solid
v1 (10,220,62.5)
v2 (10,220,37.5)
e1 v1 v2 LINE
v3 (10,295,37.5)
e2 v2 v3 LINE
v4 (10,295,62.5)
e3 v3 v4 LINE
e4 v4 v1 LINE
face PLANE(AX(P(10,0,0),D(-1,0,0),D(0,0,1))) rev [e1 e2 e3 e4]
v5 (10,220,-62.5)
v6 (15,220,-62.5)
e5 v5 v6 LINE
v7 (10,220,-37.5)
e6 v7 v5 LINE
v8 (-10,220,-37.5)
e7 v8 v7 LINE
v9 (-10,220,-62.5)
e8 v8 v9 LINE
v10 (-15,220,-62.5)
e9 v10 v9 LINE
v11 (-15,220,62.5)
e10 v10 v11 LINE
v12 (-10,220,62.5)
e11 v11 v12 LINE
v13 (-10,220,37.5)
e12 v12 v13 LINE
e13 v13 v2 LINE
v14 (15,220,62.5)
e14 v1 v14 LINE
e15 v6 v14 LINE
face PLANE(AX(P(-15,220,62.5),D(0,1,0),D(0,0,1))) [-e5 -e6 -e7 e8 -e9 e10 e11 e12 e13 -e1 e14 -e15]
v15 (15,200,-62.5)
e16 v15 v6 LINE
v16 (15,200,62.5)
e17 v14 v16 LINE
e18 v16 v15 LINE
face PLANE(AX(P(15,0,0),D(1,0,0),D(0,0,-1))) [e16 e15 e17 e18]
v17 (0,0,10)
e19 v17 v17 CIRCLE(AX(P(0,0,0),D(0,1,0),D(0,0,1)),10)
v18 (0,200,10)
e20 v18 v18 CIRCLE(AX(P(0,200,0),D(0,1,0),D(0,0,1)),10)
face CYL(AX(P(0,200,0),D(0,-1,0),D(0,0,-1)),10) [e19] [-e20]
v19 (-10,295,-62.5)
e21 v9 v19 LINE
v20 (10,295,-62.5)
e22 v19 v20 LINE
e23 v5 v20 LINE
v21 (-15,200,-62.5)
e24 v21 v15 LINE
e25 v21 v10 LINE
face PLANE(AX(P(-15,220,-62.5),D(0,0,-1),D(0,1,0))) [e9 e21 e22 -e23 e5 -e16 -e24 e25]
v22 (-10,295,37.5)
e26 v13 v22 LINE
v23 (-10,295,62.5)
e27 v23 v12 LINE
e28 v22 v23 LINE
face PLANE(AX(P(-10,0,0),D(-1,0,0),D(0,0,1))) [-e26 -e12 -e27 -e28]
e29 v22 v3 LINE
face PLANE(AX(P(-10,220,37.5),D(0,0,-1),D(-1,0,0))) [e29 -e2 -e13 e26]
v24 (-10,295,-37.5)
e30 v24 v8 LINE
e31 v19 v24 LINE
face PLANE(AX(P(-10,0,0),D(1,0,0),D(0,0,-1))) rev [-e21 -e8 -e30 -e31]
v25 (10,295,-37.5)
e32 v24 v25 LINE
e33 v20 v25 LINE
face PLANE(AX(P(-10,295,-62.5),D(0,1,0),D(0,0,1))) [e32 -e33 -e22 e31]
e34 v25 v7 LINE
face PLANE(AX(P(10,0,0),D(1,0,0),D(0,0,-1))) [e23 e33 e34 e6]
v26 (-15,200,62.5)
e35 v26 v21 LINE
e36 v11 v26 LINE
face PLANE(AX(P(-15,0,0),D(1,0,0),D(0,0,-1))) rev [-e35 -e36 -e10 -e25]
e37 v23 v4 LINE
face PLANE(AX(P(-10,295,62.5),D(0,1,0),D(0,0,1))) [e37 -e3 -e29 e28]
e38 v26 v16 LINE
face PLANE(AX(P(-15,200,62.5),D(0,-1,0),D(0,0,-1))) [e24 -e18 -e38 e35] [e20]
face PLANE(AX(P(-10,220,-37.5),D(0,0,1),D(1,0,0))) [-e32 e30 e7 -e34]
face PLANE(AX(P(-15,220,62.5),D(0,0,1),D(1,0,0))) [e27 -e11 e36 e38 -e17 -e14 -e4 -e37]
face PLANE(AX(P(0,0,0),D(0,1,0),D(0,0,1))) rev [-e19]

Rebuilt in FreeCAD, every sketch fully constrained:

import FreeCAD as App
import Part
import Sketcher

V = App.Vector


def add_polygon(sketch, points):
    """Adds a closed chain of lines whose ends are joined by coincident constraints."""
    first, n = sketch.GeometryCount, len(points)
    for a, b in zip(points, points[1:] + points[:1]):
        sketch.addGeometry(Part.LineSegment(App.Vector(*a, 0), App.Vector(*b, 0)), False)
    for i in range(n):
        sketch.addConstraint(Sketcher.Constraint("Coincident", first + i, 2, first + (i + 1) % n, 1))

doc = App.newDocument("Part")
params = doc.addObject("Spreadsheet::Sheet", "Params")
for row, (alias, value) in enumerate([
    ("sketch1_diameter", "20 mm"),
    ("pad1_length", "200 mm"),
    ("sketch2_width", "20 mm"),
    ("sketch2_height", "125 mm"),
    ("pad2_length", "15 mm"),
    ("pad2_length2", "15 mm"),
    ("sketch3_width", "75 mm"),
    ("sketch3_height", "25 mm"),
    ("pad3_length", "10 mm"),
    ("pad3_length2", "10 mm"),
], start=1):
    params.set(f"A{row}", alias)
    params.set(f"B{row}", "=" + value)
    params.setAlias(f"B{row}", alias)

body = doc.addObject("PartDesign::Body", "Body")

sketch1 = doc.addObject("Sketcher::SketchObject", "Sketch")
body.addObject(sketch1)
sketch1.AttachmentSupport = (doc.XZ_Plane, [""])
sketch1.MapMode = "FlatFace"
sketch1.addGeometry(Part.Circle(V(0, 0, 0), V(0, 0, 1), 10), False)
sketch1.addConstraint([
    Sketcher.Constraint("Coincident", 0, 3, -1, 1),
    Sketcher.Constraint("Diameter", 0, 20.0),
])
sketch1.setExpression("Constraints[1]", "Params.sketch1_diameter")
pad1 = doc.addObject("PartDesign::Pad", "Pad")
body.addObject(pad1)
pad1.Profile = sketch1
pad1.setExpression("Length", "Params.pad1_length")
pad1.Reversed = True

sketch2 = doc.addObject("Sketcher::SketchObject", "Sketch001")
body.addObject(sketch2)
sketch2.AttachmentSupport = (doc.YZ_Plane, [""])
sketch2.MapMode = "FlatFace"
add_polygon(sketch2, [(220, 62), (200, 62), (200, -62), (220, -62)])
sketch2.addConstraint([
    Sketcher.Constraint("Horizontal", 0),
    Sketcher.Constraint("Vertical", 1),
    Sketcher.Constraint("Horizontal", 2),
    Sketcher.Constraint("Vertical", 3),
    Sketcher.Constraint("DistanceX", 0, 2, 0, 1, 20.0),
    Sketcher.Constraint("DistanceY", 1, 2, 1, 1, 125.0),
    Sketcher.Constraint("DistanceX", -1, 1, 0, 2, 200.0),
    Sketcher.Constraint("DistanceY", -1, 1, 0, 2, 62.5),
])
sketch2.setExpression("Constraints[8]", "Params.sketch2_width")
sketch2.setExpression("Constraints[9]", "Params.sketch2_height")
pad2 = doc.addObject("PartDesign::Pad", "Pad001")
body.addObject(pad2)
pad2.Profile = sketch2
pad2.Type = "TwoLengths"
pad2.setExpression("Length", "Params.pad2_length")
pad2.setExpression("Length2", "Params.pad2_length2")

sketch3 = doc.addObject("Sketcher::SketchObject", "Sketch002")
body.addObject(sketch3)
sketch3.AttachmentSupport = (doc.YZ_Plane, [""])
sketch3.MapMode = "FlatFace"
add_polygon(sketch3, [(295, 62), (220, 62), (220, 38), (295, 38)])
add_polygon(sketch3, [(295, -38), (220, -38), (220, -62), (295, -62)])
sketch3.addConstraint([
    Sketcher.Constraint("Horizontal", 0),
    Sketcher.Constraint("Vertical", 1),
    Sketcher.Constraint("Horizontal", 2),
    Sketcher.Constraint("Vertical", 3),
    Sketcher.Constraint("Horizontal", 4),
    Sketcher.Constraint("Vertical", 5),
    Sketcher.Constraint("Horizontal", 6),
    Sketcher.Constraint("Vertical", 7),
    Sketcher.Constraint("Symmetric", 1, 2, 4, 2, -1),
    Sketcher.Constraint("Symmetric", 3, 2, 6, 2, -1),
    Sketcher.Constraint("DistanceX", 0, 2, 0, 1, 75.0),
    Sketcher.Constraint("DistanceY", 1, 2, 1, 1, 25.0),
    Sketcher.Constraint("DistanceX", -1, 1, 0, 2, 220.0),
    Sketcher.Constraint("DistanceY", 4, 2, 1, 2, 75.0),
])
sketch3.setExpression("Constraints[18]", "Params.sketch3_width")
sketch3.setExpression("Constraints[19]", "Params.sketch3_height")
pad3 = doc.addObject("PartDesign::Pad", "Pad002")
body.addObject(pad3)
pad3.Profile = sketch3
pad3.Type = "TwoLengths"
pad3.setExpression("Length", "Params.pad3_length")
pad3.setExpression("Length2", "Params.pad3_length2")

doc.recompute()
